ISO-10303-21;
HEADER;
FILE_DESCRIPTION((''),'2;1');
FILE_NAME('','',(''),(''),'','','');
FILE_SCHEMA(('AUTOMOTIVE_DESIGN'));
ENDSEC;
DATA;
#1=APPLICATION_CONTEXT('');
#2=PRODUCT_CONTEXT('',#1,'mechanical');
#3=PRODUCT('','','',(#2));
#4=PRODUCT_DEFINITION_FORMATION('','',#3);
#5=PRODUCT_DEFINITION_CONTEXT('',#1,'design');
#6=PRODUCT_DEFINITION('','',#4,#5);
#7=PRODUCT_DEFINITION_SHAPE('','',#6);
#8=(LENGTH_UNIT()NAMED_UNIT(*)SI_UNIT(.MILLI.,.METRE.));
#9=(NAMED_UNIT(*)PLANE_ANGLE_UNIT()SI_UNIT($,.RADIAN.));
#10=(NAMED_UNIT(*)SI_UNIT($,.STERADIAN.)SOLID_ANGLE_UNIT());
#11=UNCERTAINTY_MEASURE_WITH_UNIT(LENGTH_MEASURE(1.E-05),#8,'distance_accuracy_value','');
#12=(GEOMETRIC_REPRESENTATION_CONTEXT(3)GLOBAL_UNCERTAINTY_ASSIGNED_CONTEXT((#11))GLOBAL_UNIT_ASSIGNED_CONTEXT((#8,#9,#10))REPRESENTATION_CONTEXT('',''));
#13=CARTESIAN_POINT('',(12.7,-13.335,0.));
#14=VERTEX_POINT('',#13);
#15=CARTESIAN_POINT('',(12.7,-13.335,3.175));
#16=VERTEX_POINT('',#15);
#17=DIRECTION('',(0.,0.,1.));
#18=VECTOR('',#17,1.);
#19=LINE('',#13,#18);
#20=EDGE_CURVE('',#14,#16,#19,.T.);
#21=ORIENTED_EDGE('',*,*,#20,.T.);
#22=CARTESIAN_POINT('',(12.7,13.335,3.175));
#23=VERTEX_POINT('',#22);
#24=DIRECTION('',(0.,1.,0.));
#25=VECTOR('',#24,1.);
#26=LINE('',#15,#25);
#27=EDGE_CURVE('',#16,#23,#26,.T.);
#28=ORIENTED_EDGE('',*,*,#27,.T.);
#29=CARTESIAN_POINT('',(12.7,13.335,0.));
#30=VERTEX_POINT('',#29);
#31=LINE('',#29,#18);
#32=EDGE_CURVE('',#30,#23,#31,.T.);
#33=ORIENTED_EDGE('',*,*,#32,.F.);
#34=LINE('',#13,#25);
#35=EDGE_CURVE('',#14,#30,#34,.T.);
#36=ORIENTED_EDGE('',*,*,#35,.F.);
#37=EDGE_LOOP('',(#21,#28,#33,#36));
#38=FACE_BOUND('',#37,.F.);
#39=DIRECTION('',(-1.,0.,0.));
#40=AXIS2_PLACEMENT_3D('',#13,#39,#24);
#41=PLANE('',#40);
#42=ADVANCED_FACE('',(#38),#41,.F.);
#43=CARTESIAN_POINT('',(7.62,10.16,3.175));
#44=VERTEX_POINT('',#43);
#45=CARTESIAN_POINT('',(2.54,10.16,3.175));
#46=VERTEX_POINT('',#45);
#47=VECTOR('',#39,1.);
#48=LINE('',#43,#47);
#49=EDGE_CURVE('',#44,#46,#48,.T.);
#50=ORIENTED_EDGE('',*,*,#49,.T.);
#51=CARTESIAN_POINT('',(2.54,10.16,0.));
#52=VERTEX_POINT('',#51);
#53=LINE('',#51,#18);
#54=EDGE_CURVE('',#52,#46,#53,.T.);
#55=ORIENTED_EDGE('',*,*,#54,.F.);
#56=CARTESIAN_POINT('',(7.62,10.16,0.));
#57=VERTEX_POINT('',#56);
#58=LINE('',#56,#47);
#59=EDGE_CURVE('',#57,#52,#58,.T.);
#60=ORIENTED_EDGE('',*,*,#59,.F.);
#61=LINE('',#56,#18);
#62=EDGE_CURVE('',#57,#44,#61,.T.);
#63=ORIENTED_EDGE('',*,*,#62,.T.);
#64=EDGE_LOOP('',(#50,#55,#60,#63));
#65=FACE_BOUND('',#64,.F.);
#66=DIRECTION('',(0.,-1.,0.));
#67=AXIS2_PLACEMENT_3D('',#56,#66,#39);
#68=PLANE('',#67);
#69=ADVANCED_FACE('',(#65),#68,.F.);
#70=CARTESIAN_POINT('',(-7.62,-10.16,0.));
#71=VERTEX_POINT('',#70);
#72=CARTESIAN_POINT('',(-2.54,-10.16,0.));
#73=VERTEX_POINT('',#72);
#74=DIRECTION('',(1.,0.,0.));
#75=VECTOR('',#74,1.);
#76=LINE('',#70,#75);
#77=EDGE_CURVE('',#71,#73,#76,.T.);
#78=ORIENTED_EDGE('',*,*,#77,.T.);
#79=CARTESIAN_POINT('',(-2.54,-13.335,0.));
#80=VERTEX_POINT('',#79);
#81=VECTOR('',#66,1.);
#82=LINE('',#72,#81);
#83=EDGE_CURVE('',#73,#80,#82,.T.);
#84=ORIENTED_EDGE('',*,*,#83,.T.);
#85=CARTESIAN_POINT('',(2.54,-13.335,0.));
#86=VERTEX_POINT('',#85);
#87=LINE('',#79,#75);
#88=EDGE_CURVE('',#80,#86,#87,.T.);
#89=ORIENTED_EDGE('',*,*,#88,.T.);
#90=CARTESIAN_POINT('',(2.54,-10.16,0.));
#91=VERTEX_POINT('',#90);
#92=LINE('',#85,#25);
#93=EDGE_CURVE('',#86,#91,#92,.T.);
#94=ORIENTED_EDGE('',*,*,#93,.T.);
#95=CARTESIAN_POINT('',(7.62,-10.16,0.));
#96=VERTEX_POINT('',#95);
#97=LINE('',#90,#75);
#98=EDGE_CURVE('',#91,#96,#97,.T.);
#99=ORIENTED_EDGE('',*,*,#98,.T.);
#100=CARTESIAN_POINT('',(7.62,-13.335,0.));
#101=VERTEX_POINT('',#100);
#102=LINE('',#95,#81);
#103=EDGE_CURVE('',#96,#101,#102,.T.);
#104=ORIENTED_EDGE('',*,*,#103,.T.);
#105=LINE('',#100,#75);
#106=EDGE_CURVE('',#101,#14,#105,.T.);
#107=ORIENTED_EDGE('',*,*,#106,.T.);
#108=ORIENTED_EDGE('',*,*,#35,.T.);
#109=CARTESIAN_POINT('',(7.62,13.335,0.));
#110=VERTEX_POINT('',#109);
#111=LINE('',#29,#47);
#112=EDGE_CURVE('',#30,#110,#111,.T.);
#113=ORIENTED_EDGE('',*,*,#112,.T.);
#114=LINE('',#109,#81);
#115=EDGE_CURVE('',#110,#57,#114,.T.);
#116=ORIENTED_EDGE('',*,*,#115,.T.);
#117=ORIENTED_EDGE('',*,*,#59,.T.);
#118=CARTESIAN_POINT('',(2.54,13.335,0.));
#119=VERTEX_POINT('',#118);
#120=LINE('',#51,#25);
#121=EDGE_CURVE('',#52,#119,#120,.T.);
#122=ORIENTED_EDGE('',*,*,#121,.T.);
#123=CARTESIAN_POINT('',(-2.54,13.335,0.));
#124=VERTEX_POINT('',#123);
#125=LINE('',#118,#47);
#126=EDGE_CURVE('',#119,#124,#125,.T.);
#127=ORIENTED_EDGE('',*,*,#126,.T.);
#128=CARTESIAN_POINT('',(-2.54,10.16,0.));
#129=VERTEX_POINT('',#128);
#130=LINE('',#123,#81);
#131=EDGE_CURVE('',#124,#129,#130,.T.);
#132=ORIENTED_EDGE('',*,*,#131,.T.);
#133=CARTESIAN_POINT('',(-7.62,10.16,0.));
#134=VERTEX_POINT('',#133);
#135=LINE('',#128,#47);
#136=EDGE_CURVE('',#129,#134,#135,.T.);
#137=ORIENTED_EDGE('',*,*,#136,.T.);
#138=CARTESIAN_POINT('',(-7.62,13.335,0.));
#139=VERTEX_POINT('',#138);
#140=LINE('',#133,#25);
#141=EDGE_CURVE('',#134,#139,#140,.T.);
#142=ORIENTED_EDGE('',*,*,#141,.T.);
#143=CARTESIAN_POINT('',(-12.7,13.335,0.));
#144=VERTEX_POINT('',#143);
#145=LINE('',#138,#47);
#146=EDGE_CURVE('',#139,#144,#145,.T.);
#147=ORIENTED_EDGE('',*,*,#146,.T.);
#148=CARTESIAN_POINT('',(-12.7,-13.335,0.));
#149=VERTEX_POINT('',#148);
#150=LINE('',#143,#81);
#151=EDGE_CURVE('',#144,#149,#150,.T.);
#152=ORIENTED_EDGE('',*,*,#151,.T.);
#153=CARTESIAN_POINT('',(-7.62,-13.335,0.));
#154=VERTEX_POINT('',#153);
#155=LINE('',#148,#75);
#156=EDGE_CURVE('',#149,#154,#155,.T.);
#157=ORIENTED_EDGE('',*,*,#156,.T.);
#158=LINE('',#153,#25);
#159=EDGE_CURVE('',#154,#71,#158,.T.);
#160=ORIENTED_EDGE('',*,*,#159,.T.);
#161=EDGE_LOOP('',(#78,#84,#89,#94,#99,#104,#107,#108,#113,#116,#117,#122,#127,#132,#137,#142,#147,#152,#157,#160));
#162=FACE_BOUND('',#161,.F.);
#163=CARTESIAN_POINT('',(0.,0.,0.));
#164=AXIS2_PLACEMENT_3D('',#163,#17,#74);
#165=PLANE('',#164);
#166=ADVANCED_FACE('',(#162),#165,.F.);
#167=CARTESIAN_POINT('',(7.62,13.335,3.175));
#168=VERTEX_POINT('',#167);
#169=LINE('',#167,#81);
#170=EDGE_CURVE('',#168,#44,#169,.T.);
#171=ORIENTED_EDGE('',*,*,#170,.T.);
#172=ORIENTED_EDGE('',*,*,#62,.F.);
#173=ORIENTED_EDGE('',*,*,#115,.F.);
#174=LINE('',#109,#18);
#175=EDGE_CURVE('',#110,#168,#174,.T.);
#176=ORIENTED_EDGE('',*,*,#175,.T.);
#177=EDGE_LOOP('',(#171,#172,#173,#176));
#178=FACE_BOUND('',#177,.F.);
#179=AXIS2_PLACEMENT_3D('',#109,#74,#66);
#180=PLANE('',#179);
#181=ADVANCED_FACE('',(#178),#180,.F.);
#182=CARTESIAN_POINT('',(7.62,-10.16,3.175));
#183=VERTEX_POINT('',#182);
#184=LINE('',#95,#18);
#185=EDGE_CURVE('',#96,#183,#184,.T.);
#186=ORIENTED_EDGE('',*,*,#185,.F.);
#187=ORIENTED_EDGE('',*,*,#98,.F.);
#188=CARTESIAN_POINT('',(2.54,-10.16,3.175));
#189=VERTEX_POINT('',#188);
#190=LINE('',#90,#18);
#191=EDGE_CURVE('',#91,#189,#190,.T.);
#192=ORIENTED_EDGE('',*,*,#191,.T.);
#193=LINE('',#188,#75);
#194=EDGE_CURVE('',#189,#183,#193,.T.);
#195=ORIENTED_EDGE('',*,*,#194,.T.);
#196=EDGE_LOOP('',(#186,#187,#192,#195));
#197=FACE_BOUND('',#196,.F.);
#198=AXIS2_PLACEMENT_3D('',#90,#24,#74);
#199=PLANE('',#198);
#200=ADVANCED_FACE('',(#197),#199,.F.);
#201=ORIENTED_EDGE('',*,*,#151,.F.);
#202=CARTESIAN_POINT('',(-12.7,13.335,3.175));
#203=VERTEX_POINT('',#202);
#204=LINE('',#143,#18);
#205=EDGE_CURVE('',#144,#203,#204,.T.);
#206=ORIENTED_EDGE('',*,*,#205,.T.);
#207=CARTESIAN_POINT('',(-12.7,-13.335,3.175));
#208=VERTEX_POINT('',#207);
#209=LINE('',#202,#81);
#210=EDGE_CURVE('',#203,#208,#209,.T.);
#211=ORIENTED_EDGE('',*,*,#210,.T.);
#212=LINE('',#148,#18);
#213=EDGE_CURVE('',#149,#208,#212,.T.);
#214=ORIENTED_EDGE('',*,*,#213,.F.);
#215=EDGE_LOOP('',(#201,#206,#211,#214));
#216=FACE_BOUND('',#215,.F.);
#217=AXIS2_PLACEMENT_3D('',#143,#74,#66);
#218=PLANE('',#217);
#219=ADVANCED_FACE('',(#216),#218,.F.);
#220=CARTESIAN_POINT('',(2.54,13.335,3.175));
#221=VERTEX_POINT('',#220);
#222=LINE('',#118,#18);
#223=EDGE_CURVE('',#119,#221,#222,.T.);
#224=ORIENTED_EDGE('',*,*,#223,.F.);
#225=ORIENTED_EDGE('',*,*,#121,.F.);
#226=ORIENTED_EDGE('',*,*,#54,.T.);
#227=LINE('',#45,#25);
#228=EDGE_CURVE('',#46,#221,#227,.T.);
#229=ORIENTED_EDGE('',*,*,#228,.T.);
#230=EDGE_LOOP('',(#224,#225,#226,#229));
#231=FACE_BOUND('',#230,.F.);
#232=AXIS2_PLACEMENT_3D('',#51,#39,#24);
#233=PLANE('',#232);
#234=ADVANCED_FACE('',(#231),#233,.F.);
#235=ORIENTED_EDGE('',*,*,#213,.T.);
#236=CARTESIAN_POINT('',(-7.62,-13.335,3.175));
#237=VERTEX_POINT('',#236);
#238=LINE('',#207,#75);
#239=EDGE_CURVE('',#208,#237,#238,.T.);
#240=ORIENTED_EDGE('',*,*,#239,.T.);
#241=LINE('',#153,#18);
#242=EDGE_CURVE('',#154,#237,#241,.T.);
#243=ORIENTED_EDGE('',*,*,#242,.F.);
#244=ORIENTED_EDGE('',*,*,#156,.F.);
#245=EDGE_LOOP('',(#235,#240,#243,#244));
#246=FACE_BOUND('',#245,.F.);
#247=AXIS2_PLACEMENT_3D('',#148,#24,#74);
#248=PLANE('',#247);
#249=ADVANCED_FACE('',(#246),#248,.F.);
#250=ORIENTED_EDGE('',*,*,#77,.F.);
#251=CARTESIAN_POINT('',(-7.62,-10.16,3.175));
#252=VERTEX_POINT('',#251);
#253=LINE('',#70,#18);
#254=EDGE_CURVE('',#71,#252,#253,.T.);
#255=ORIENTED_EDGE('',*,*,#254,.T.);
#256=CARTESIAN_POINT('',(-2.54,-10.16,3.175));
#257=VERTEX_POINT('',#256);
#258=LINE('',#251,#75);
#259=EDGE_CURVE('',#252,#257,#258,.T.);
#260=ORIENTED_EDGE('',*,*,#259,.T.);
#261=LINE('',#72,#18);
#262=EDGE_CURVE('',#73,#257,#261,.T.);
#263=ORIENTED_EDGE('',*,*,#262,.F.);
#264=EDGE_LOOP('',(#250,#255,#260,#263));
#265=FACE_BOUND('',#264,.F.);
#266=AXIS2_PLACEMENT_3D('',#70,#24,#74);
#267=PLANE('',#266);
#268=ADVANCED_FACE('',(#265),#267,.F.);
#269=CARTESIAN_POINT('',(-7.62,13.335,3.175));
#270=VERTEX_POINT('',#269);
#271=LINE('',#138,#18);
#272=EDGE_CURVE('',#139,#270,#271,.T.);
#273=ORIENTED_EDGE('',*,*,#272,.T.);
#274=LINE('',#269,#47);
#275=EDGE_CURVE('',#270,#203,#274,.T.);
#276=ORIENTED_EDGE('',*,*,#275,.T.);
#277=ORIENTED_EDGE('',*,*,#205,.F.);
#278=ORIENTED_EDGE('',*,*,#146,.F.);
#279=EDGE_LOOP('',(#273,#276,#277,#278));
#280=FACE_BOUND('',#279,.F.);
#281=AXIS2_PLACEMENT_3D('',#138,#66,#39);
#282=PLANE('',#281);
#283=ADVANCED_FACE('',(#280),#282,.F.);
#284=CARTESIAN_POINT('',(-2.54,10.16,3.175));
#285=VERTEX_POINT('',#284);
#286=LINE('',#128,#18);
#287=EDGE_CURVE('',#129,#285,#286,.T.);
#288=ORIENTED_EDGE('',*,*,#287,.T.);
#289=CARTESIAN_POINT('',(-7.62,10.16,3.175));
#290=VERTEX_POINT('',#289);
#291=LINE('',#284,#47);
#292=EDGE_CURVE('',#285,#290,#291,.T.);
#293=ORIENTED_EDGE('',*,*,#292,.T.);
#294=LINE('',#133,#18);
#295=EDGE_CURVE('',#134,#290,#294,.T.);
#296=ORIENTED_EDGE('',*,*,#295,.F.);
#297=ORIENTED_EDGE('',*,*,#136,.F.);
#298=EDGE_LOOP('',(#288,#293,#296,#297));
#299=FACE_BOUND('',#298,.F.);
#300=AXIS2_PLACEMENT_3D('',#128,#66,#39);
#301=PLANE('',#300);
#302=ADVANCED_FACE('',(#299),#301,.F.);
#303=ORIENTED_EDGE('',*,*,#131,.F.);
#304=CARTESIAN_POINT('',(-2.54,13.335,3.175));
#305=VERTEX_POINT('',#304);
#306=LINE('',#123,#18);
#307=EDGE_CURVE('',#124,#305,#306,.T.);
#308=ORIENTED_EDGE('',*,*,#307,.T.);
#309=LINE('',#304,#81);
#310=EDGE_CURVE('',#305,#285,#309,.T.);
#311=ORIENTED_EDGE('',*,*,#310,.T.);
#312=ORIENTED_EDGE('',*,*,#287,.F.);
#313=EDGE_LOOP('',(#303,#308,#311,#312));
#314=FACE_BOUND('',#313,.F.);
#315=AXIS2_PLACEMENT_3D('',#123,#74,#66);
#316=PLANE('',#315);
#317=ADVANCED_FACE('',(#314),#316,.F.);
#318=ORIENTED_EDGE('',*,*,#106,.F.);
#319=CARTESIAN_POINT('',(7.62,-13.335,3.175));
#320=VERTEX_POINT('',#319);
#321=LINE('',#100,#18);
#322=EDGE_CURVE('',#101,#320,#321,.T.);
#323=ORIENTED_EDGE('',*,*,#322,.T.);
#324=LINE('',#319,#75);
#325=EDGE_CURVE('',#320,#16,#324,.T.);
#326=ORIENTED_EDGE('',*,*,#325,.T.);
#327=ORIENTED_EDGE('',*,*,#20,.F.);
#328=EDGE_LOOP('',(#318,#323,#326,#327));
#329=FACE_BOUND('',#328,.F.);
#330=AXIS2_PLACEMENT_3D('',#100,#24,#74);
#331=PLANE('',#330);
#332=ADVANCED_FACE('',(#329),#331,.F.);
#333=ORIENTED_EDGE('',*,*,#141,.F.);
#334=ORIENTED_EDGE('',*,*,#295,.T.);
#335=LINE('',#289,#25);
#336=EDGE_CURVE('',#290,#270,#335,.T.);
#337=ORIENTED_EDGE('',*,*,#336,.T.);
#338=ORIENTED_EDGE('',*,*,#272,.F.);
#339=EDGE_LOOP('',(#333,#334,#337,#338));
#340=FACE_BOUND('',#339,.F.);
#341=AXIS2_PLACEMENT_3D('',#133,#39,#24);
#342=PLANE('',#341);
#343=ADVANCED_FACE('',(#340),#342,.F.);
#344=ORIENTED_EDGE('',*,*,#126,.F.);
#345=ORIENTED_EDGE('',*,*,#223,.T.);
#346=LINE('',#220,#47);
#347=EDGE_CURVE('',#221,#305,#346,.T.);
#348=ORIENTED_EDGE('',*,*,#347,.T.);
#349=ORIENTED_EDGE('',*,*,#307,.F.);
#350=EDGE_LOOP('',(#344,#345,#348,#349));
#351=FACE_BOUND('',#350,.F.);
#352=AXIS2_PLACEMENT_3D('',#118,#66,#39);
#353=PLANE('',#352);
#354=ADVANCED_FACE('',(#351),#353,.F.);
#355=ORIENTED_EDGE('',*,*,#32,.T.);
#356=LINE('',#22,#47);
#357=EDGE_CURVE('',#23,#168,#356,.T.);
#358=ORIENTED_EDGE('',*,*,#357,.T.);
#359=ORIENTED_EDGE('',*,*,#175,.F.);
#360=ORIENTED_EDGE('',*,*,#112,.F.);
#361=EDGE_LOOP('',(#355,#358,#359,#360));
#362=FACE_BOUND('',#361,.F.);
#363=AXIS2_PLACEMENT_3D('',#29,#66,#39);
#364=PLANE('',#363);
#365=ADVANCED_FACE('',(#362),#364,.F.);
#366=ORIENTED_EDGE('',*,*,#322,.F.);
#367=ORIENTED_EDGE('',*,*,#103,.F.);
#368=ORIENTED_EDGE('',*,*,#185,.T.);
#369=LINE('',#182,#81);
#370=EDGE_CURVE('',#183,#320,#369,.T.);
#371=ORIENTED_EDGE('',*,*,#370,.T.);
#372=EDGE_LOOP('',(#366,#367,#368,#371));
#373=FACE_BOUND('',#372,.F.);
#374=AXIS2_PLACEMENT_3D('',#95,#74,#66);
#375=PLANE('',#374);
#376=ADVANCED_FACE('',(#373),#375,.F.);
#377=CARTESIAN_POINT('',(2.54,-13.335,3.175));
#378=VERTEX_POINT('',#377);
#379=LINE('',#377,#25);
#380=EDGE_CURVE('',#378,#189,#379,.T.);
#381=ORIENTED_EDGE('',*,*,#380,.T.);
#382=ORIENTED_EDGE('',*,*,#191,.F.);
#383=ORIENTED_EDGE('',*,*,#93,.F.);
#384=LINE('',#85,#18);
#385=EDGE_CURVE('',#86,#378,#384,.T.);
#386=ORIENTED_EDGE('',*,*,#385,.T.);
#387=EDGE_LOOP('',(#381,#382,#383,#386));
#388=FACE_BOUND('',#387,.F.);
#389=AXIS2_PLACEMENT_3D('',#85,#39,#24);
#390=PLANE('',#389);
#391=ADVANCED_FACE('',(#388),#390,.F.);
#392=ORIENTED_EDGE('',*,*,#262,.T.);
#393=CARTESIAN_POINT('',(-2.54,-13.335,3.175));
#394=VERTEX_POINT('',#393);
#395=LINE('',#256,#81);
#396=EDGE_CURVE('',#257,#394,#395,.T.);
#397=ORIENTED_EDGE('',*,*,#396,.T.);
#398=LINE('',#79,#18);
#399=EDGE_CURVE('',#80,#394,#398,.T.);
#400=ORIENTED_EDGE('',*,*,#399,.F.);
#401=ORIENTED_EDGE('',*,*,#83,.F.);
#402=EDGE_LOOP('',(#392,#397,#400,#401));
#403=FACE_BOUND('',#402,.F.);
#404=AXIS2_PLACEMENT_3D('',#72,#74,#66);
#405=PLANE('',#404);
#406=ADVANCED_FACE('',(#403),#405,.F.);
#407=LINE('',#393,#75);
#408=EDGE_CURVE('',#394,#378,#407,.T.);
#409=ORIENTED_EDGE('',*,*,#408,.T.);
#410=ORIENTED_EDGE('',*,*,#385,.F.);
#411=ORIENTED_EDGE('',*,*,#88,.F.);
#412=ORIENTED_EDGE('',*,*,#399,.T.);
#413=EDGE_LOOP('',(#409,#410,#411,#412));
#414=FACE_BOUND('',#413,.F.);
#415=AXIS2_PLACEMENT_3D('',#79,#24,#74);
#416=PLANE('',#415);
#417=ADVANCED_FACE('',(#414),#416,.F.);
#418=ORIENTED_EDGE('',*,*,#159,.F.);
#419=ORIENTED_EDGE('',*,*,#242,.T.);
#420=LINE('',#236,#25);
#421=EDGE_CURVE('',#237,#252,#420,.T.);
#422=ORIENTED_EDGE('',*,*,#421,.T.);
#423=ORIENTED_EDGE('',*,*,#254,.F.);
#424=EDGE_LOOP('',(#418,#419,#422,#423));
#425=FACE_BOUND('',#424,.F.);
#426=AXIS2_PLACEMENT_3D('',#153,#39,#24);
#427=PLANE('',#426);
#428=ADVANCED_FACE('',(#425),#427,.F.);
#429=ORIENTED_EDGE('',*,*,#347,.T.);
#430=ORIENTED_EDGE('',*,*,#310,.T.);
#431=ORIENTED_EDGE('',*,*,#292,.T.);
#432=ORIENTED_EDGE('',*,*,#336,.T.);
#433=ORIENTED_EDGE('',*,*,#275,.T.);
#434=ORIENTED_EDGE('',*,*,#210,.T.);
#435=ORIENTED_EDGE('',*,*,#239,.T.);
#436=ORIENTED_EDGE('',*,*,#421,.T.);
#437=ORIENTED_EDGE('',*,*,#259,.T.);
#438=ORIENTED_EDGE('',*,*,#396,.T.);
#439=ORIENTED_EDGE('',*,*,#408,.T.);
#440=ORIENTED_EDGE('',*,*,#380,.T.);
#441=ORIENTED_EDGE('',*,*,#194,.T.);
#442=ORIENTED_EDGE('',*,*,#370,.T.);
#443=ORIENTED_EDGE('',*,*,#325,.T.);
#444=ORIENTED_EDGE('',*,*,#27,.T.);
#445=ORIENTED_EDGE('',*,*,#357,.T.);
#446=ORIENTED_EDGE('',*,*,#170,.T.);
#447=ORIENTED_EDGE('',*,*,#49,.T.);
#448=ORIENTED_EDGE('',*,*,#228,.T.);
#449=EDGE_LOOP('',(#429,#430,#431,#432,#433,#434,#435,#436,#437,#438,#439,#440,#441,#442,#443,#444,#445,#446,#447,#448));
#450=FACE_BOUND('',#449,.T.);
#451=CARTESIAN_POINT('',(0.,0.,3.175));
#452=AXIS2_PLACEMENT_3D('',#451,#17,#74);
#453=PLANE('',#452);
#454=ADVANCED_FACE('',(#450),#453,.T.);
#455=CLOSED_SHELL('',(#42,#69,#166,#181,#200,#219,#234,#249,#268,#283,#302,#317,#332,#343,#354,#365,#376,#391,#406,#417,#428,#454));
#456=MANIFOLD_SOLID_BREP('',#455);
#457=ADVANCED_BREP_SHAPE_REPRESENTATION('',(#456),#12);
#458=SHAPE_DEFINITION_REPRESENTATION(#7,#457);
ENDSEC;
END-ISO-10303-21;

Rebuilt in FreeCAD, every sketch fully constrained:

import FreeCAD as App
import Part
import Sketcher

V = App.Vector
Q = App.Units.Quantity


def add_polygon(sketch, points):
    """Adds a closed chain of lines whose ends are joined by coincident constraints."""
    first, n = sketch.GeometryCount, len(points)
    for a, b in zip(points, points[1:] + points[:1]):
        sketch.addGeometry(Part.LineSegment(App.Vector(*a, 0), App.Vector(*b, 0)), False)
    for i in range(n):
        sketch.addConstraint(Sketcher.Constraint("Coincident", first + i, 2, first + (i + 1) % n, 1))

doc = App.newDocument("Part")
body = doc.addObject("PartDesign::Body", "Body")

sketch1 = body.newObject("Sketcher::SketchObject", "Sketch")
sketch1.AttachmentSupport = (doc.getObject("XY_Plane"), [""])
sketch1.MapMode = "FlatFace"
add_polygon(sketch1, [(-2.5, -13.3), (2.5, -13.3), (2.5, -10.2), (7.6, -10.2), (7.6, -13.3), (12.7, -13.3), (12.7, 13.3), (7.6, 13.3), (7.6, 10.2), (2.5, 10.2), (2.5, 13.3), (-2.5, 13.3), (-2.5, 10.2), (-7.6, 10.2), (-7.6, 13.3), (-12.7, 13.3), (-12.7, -13.3), (-7.6, -13.3), (-7.6, -10.2), (-2.5, -10.2)])
sketch1.addConstraint([
    Sketcher.Constraint("Horizontal", 0),
    Sketcher.Constraint("Vertical", 1),
    Sketcher.Constraint("Horizontal", 2),
    Sketcher.Constraint("Vertical", 3),
    Sketcher.Constraint("Horizontal", 4),
    Sketcher.Constraint("Vertical", 5),
    Sketcher.Constraint("Horizontal", 6),
    Sketcher.Constraint("Vertical", 7),
    Sketcher.Constraint("Horizontal", 8),
    Sketcher.Constraint("Vertical", 9),
    Sketcher.Constraint("Horizontal", 10),
    Sketcher.Constraint("Vertical", 11),
    Sketcher.Constraint("Horizontal", 12),
    Sketcher.Constraint("Vertical", 13),
    Sketcher.Constraint("Horizontal", 14),
    Sketcher.Constraint("Vertical", 15),
    Sketcher.Constraint("Horizontal", 16),
    Sketcher.Constraint("Vertical", 17),
    Sketcher.Constraint("Horizontal", 18),
    Sketcher.Constraint("Vertical", 19),
    Sketcher.Constraint("Symmetric", 0, 2, 10, 2, -1, 1),
    Sketcher.Constraint("Symmetric", 2, 2, 12, 2, -1, 1),
    Sketcher.Constraint("Symmetric", 4, 2, 14, 2, -1, 1),
    Sketcher.Constraint("Symmetric", 6, 2, 16, 2, -1, 1),
    Sketcher.Constraint("Symmetric", 8, 2, 18, 2, -1, 1),
    Sketcher.Constraint("Symmetric", 8, 2, 11, 2, -2),
    Sketcher.Constraint("Symmetric", 6, 2, 13, 2, -2),
    Sketcher.Constraint("Horizontal", 0, 2, 3, 2),
    Sketcher.Constraint("Equal", 0, 2),
    Sketcher.Constraint("Equal", 2, 4),
    Sketcher.Constraint("DistanceX", 0, 1, 0, 2, Q("0.2 in")),
    Sketcher.Constraint("DistanceY", 5, 1, 5, 2, Q("1.05 in")),
    Sketcher.Constraint("DistanceY", 1, 2, -1, 1, Q("0.4 in")),
])
pad1 = body.newObject("PartDesign::Pad", "Pad")
pad1.Profile = sketch1
pad1.Length = Q("0.125 in")

doc.recompute()
